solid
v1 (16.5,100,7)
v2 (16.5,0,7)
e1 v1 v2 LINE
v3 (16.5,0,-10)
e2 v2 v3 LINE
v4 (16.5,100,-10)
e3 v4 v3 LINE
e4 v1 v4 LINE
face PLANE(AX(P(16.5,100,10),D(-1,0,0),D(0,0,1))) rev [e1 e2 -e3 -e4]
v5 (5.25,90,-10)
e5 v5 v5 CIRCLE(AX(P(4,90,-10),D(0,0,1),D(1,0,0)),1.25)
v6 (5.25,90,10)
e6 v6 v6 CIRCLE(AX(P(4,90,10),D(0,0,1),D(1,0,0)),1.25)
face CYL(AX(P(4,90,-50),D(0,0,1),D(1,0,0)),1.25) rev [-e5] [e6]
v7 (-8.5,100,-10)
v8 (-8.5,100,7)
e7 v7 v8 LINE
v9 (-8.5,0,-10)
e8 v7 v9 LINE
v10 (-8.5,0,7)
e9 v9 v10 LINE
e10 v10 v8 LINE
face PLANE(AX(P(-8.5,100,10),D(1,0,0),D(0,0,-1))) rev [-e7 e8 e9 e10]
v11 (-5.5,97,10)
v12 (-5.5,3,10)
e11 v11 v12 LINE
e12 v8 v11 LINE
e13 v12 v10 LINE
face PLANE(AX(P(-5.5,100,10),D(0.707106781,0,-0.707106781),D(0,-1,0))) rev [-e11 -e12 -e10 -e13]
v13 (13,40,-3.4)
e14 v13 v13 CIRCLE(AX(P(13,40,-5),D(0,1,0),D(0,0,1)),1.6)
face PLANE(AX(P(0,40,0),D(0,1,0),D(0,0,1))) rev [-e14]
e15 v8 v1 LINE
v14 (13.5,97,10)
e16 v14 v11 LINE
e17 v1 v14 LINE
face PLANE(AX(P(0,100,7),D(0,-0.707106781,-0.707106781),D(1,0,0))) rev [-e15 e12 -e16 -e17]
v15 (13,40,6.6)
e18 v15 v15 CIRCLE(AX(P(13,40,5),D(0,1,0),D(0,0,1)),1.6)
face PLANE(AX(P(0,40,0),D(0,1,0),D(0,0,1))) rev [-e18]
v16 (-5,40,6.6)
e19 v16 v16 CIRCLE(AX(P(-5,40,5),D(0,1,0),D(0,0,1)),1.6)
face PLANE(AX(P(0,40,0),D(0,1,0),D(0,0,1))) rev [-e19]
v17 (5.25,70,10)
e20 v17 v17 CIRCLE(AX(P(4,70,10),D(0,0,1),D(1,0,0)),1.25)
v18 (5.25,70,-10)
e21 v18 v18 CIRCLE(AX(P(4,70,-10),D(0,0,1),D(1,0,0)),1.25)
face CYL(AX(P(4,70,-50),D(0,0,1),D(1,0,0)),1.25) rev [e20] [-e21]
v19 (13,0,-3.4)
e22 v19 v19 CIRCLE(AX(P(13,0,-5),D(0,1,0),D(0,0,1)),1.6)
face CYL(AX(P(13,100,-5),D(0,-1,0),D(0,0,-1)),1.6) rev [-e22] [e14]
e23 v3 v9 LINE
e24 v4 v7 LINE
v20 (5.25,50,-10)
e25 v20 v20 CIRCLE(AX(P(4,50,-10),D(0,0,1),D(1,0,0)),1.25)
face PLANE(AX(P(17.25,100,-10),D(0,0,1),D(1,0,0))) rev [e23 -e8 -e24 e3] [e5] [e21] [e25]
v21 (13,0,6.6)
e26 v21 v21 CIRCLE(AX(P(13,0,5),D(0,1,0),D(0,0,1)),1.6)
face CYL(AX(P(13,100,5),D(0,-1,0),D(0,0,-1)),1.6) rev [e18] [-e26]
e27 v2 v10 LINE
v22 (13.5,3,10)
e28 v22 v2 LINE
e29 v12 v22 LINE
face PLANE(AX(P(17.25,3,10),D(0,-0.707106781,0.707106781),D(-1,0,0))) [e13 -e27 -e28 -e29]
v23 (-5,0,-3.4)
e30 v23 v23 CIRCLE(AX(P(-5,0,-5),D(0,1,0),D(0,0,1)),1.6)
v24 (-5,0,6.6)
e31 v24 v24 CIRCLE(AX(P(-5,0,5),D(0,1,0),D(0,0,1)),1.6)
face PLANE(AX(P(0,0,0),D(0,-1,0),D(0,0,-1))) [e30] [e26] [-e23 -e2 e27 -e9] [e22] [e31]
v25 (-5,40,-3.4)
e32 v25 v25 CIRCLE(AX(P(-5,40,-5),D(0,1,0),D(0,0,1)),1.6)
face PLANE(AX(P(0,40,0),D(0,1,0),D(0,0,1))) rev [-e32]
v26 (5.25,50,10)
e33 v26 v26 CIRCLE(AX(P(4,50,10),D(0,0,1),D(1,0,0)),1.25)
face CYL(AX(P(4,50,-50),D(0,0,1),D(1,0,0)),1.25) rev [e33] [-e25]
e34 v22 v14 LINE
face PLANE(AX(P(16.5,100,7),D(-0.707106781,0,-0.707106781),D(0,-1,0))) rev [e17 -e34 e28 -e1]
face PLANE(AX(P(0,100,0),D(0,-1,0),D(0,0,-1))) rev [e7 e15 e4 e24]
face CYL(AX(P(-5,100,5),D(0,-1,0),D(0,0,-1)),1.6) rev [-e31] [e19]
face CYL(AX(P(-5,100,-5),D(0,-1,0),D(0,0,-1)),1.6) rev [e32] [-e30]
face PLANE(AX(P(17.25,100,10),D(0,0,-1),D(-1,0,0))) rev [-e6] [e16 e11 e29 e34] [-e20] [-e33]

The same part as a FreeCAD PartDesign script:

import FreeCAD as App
import Part
import Sketcher

V = App.Vector
Q = App.Units.Quantity


def edges_at(feature, points):
    """Names of the edges that pass closest to the given points."""
    edges = feature.Shape.Edges
    near = lambda p: min(range(len(edges)), key=lambda i: edges[i].distToShape(Part.Vertex(*p))[0])
    return sorted({f"Edge{near(p) + 1}" for p in points})

doc = App.newDocument("Part")
body = doc.addObject("PartDesign::Body", "Body")

sketch1 = doc.addObject("Sketcher::SketchObject", "Sketch")
body.addObject(sketch1)
sketch1.AttachmentSupport = (doc.XZ_Plane, [""])
sketch1.MapMode = "FlatFace"
sketch1.addGeometry(Part.LineSegment(V(-17.2, 10, 0), V(25.2, 10, 0)), False)
sketch1.addGeometry(Part.LineSegment(V(25.2, 10, 0), V(25.2, -10, 0)), False)
sketch1.addGeometry(Part.LineSegment(V(25.2, -10, 0), V(-17.2, -10, 0)), False)
sketch1.addGeometry(Part.LineSegment(V(-17.2, -10, 0), V(-17.2, 10, 0)), False)
sketch1.addGeometry(Part.Circle(V(-5, 5, 0), V(0, 0, 1), 1.6), False)
sketch1.addGeometry(Part.Circle(V(13, 5, 0), V(0, 0, 1), 1.6), False)
sketch1.addGeometry(Part.Circle(V(-5, -5, 0), V(0, 0, 1), 1.6), False)
sketch1.addGeometry(Part.Circle(V(13, -5, 0), V(0, 0, 1), 1.6), False)
sketch1.addConstraint(Sketcher.Constraint("Coincident", 0, 2, 1, 1))
sketch1.addConstraint(Sketcher.Constraint("Coincident", 1, 2, 2, 1))
sketch1.addConstraint(Sketcher.Constraint("Coincident", 2, 2, 3, 1))
sketch1.addConstraint(Sketcher.Constraint("Coincident", 3, 2, 0, 1))
sketch1.addConstraint(Sketcher.Constraint("Horizontal", 0))
sketch1.addConstraint(Sketcher.Constraint("Vertical", 1))
sketch1.addConstraint(Sketcher.Constraint("Horizontal", 2))
sketch1.addConstraint(Sketcher.Constraint("Vertical", 3))
sketch1.addConstraint(Sketcher.Constraint("Equal", 4, 5))
sketch1.addConstraint(Sketcher.Constraint("Equal", 5, 6))
sketch1.addConstraint(Sketcher.Constraint("Equal", 6, 7))
sketch1.addConstraint(Sketcher.Constraint("Symmetric", 4, 3, 6, 3, -1))
sketch1.addConstraint(Sketcher.Constraint("Symmetric", 5, 3, 7, 3, -1))
sketch1.addConstraint(Sketcher.Constraint("Horizontal", 4, 3, 5, 3))
sketch1.addConstraint(Sketcher.Constraint("Diameter", 4, Q("3.2 mm")))
sketch1.addConstraint(Sketcher.Constraint("DistanceY", 1, 2, 1, 1, Q("20 mm")))
sketch1.addConstraint(Sketcher.Constraint("DistanceX", 0, 1, 0, 2, Q("42.5 mm")))
sketch1.addConstraint(Sketcher.Constraint("DistanceX", 4, 3, -1, 1, Q("5 mm")))
sketch1.addConstraint(Sketcher.Constraint("DistanceY", -1, 1, 4, 3, Q("5 mm")))
sketch1.addConstraint(Sketcher.Constraint("DistanceX", -1, 1, 5, 3, Q("13 mm")))
sketch1.addConstraint(Sketcher.Constraint("DistanceY", -1, 1, 0, 2, Q("10 mm")))
sketch1.addConstraint(Sketcher.Constraint("DistanceX", -1, 1, 0, 2, Q("25.25 mm")))
pad1 = doc.addObject("PartDesign::Pad", "Pad")
body.addObject(pad1)
pad1.Profile = sketch1
pad1.Length = 100
pad1.Reversed = True

sketch2 = doc.addObject("Sketcher::SketchObject", "Sketch001")
body.addObject(sketch2)
sketch2.AttachmentSupport = (doc.XZ_Plane, [""])
sketch2.MapMode = "FlatFace"
sketch2.addGeometry(Part.LineSegment(V(-17, 10, 0), V(-17, -10, 0)), False)
sketch2.addGeometry(Part.LineSegment(V(-17, -10, 0), V(-8, -10, 0)), False)
sketch2.addGeometry(Part.LineSegment(V(-8, -10, 0), V(-8, 10, 0)), False)
sketch2.addGeometry(Part.LineSegment(V(-8, 10, 0), V(-17, 10, 0)), False)
sketch2.addGeometry(Part.LineSegment(V(16, 10, 0), V(16, -10, 0)), False)
sketch2.addGeometry(Part.LineSegment(V(16, -10, 0), V(25, -10, 0)), False)
sketch2.addGeometry(Part.LineSegment(V(25, -10, 0), V(25, 10, 0)), False)
sketch2.addGeometry(Part.LineSegment(V(25, 10, 0), V(16, 10, 0)), False)
sketch2.addConstraint(Sketcher.Constraint("Coincident", 0, 2, 1, 1))
sketch2.addConstraint(Sketcher.Constraint("Coincident", 1, 2, 2, 1))
sketch2.addConstraint(Sketcher.Constraint("Coincident", 2, 2, 3, 1))
sketch2.addConstraint(Sketcher.Constraint("Coincident", 3, 2, 0, 1))
sketch2.addConstraint(Sketcher.Constraint("Coincident", 4, 2, 5, 1))
sketch2.addConstraint(Sketcher.Constraint("Coincident", 5, 2, 6, 1))
sketch2.addConstraint(Sketcher.Constraint("Coincident", 6, 2, 7, 1))
sketch2.addConstraint(Sketcher.Constraint("Coincident", 7, 2, 4, 1))
sketch2.addConstraint(Sketcher.Constraint("Vertical", 0))
sketch2.addConstraint(Sketcher.Constraint("Horizontal", 1))
sketch2.addConstraint(Sketcher.Constraint("Vertical", 2))
sketch2.addConstraint(Sketcher.Constraint("Horizontal", 3))
sketch2.addConstraint(Sketcher.Constraint("Vertical", 4))
sketch2.addConstraint(Sketcher.Constraint("Horizontal", 5))
sketch2.addConstraint(Sketcher.Constraint("Vertical", 6))
sketch2.addConstraint(Sketcher.Constraint("Horizontal", 7))
sketch2.addConstraint(Sketcher.Constraint("Horizontal", 1, 2, 4, 2))
sketch2.addConstraint(Sketcher.Constraint("Horizontal", 3, 2, 6, 2))
sketch2.addConstraint(Sketcher.Constraint("Equal", 3, 5))
sketch2.addConstraint(Sketcher.Constraint("DistanceY", 0, 2, 0, 1, Q("20 mm")))
sketch2.addConstraint(Sketcher.Constraint("DistanceY", 0, 2, -1, 1, Q("10 mm")))
sketch2.addConstraint(Sketcher.Constraint("DistanceX", 1, 2, 4, 2, Q("25 mm")))
sketch2.addConstraint(Sketcher.Constraint("DistanceX", 1, 1, 1, 2, Q("8.75 mm")))
sketch2.addConstraint(Sketcher.Constraint("DistanceX", 1, 2, -1, 1, Q("8.5 mm")))
pocket1 = doc.addObject("PartDesign::Pocket", "Pocket")
body.addObject(pocket1)
pocket1.Profile = sketch2
pocket1.Length = 100

sketch3 = doc.addObject("Sketcher::SketchObject", "Sketch002")
body.addObject(sketch3)
sketch3.AttachmentSupport = (doc.XZ_Plane, [""])
sketch3.MapMode = "FlatFace"
sketch3.AttachmentOffset = App.Placement(V(0, 0, -100), App.Rotation())
sketch3.addGeometry(Part.LineSegment(V(-8, -10, 0), V(-8, 10, 0)), False)
sketch3.addGeometry(Part.LineSegment(V(-8, 10, 0), V(16, 10, 0)), False)
sketch3.addGeometry(Part.LineSegment(V(16, 10, 0), V(16, -10, 0)), False)
sketch3.addGeometry(Part.LineSegment(V(16, -10, 0), V(-8, -10, 0)), False)
sketch3.addConstraint(Sketcher.Constraint("Coincident", 0, 2, 1, 1))
sketch3.addConstraint(Sketcher.Constraint("Coincident", 1, 2, 2, 1))
sketch3.addConstraint(Sketcher.Constraint("Coincident", 2, 2, 3, 1))
sketch3.addConstraint(Sketcher.Constraint("Coincident", 3, 2, 0, 1))
sketch3.addConstraint(Sketcher.Constraint("Vertical", 0))
sketch3.addConstraint(Sketcher.Constraint("Horizontal", 1))
sketch3.addConstraint(Sketcher.Constraint("Vertical", 2))
sketch3.addConstraint(Sketcher.Constraint("Horizontal", 3))
sketch3.addConstraint(Sketcher.Constraint("DistanceX", 1, 1, 1, 2, Q("25 mm")))
sketch3.addConstraint(Sketcher.Constraint("DistanceY", 0, 1, 0, 2, Q("20 mm")))
sketch3.addConstraint(Sketcher.Constraint("DistanceY", -1, 1, 0, 2, Q("10 mm")))
sketch3.addConstraint(Sketcher.Constraint("DistanceX", 0, 2, -1, 1, Q("8.5 mm")))
pad2 = doc.addObject("PartDesign::Pad", "Pad001")
body.addObject(pad2)
pad2.Profile = sketch3
pad2.Length = 60

sketch4 = doc.addObject("Sketcher::SketchObject", "Sketch003")
body.addObject(sketch4)
sketch4.AttachmentSupport = (doc.XY_Plane, [""])
sketch4.MapMode = "FlatFace"
sketch4.AttachmentOffset = App.Placement(V(0, 0, 10), App.Rotation())
sketch4.addGeometry(Part.Circle(V(4, 50, 0), V(0, 0, 1), 1.2), False)
sketch4.addGeometry(Part.Circle(V(4, 70, 0), V(0, 0, 1), 1.2), False)
sketch4.addGeometry(Part.Circle(V(4, 90, 0), V(0, 0, 1), 1.2), False)
sketch4.addConstraint(Sketcher.Constraint("Equal", 0, 1))
sketch4.addConstraint(Sketcher.Constraint("Equal", 1, 2))
sketch4.addConstraint(Sketcher.Constraint("Vertical", 0, 3, 1, 3))
sketch4.addConstraint(Sketcher.Constraint("Vertical", 1, 3, 2, 3))
sketch4.addConstraint(Sketcher.Constraint("Diameter", 0, Q("2.5 mm")))
sketch4.addConstraint(Sketcher.Constraint("DistanceX", -1, 1, 0, 3, Q("4 mm")))
sketch4.addConstraint(Sketcher.Constraint("DistanceY", -1, 1, 0, 3, Q("50 mm")))
sketch4.addConstraint(Sketcher.Constraint("DistanceY", -1, 1, 1, 3, Q("70 mm")))
sketch4.addConstraint(Sketcher.Constraint("DistanceY", -1, 1, 2, 3, Q("90 mm")))
pocket2 = doc.addObject("PartDesign::Pocket", "Pocket001")
body.addObject(pocket2)
pocket2.Profile = sketch4
pocket2.Length = 60
doc.recompute()

chamfer = doc.addObject("PartDesign::Chamfer", "Chamfer")
body.addObject(chamfer)
chamfer.Base = (pocket2, edges_at(pocket2, [
    (4, 0, 10),
    (4, 100, 10),
    (-8.5, 50, 10),
    (16.5, 50, 10),
]))
chamfer.Size = 3

doc.recompute()
